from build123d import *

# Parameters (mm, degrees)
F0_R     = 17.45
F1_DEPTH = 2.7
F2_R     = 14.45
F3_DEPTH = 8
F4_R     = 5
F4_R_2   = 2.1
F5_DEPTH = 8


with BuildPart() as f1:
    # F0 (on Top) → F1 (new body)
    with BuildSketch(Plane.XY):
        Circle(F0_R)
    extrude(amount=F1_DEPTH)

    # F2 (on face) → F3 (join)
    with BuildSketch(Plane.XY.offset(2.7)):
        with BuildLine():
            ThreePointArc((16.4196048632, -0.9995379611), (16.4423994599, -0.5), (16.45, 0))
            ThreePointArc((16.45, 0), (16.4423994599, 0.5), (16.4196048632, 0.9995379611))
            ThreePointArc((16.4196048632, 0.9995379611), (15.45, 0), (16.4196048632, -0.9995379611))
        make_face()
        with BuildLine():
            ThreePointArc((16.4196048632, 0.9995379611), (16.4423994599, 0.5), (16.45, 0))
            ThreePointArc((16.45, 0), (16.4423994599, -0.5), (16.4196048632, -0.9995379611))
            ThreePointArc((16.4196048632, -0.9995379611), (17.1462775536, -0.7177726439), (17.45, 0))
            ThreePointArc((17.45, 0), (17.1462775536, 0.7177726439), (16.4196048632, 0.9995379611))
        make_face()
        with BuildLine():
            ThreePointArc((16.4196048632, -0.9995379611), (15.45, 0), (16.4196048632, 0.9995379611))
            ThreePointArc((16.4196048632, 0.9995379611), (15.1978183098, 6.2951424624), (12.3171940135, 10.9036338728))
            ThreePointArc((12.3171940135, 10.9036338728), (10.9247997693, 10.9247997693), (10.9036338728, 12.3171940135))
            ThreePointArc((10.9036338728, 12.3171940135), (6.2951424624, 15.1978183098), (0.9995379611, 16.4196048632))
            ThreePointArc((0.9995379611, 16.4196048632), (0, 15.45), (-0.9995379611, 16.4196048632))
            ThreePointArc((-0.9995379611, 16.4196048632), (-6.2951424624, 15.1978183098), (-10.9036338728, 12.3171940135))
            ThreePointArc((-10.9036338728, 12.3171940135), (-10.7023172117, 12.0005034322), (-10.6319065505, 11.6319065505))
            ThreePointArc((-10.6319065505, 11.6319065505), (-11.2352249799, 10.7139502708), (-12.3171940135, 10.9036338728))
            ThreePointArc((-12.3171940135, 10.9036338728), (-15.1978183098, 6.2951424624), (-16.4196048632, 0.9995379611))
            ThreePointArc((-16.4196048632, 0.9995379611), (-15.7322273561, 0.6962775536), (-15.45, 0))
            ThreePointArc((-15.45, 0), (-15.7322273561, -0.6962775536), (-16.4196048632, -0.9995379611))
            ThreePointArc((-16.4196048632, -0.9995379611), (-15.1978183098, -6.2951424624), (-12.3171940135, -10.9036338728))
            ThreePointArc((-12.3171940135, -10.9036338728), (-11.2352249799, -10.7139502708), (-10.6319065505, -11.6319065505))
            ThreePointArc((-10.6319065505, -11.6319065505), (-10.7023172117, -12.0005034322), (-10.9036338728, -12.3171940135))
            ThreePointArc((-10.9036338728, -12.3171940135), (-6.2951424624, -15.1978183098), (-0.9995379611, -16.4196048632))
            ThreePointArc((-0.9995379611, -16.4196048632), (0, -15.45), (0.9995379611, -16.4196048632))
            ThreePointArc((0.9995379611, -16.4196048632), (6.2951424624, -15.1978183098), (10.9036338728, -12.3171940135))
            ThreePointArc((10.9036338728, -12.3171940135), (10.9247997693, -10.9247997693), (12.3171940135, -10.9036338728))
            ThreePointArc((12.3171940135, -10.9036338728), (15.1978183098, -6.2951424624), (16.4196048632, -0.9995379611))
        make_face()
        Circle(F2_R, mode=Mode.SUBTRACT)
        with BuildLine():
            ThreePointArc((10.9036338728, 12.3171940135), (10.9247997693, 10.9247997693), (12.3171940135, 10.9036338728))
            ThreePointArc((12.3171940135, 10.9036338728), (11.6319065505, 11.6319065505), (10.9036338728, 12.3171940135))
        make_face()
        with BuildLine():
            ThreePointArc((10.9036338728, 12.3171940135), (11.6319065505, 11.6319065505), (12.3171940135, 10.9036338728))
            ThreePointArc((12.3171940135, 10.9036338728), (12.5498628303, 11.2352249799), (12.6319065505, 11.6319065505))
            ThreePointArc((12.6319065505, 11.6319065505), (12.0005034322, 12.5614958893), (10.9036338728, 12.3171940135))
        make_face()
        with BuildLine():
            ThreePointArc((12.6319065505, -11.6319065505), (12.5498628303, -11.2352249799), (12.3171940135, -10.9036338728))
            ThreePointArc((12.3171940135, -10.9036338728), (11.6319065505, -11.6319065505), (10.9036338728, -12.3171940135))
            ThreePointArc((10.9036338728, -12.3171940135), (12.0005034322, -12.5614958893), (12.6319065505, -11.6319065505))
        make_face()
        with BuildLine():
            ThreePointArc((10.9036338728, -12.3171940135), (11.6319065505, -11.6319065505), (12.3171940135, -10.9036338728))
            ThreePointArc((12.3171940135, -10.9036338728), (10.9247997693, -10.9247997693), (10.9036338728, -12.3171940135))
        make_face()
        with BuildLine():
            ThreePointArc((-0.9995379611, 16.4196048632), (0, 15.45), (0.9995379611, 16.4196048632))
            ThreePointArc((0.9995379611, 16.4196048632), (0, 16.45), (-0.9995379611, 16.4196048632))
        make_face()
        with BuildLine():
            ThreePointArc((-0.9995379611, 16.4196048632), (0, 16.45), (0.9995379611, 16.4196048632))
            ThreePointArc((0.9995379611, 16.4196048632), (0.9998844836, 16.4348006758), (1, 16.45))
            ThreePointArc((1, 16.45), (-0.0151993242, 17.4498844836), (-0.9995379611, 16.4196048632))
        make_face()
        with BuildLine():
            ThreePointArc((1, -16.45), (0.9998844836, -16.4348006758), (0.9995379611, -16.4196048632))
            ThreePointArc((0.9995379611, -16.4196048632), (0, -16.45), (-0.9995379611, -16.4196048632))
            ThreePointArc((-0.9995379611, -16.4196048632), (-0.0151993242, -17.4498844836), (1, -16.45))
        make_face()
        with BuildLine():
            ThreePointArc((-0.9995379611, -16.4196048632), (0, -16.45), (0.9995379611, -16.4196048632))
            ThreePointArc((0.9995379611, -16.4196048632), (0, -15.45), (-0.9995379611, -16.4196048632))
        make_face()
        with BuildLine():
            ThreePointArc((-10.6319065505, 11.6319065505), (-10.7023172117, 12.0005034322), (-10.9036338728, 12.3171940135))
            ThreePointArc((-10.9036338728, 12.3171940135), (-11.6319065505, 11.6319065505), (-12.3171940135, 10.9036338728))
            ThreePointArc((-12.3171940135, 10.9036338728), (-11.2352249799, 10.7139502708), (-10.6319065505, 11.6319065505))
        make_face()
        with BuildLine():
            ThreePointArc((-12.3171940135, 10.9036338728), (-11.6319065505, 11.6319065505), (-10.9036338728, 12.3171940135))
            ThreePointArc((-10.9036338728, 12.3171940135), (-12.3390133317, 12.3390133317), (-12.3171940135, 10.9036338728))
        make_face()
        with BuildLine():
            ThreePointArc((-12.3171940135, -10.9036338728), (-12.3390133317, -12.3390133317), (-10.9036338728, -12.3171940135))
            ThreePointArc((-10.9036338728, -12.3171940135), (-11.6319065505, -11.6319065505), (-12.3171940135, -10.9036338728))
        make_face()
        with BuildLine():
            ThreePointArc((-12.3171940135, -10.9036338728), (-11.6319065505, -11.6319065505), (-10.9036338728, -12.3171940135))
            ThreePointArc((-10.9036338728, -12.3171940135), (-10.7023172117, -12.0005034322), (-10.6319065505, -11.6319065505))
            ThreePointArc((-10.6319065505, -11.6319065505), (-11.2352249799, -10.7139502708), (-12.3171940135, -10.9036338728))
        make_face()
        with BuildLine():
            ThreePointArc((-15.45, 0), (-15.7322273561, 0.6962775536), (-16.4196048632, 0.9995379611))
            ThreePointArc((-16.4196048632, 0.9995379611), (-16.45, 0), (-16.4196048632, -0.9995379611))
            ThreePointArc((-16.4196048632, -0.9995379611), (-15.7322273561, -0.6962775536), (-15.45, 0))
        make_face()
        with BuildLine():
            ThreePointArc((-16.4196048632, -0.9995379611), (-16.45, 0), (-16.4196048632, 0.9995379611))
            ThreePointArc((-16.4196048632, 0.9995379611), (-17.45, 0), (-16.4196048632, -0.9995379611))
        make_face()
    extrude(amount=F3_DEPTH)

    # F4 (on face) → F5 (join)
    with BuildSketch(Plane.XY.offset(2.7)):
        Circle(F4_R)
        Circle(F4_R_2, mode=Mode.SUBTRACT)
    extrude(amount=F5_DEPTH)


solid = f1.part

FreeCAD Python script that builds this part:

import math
import FreeCAD as App
import Part
import Sketcher

doc = App.newDocument("Part")
body = doc.addObject("PartDesign::Body", "Body")

sketch1 = body.newObject("Sketcher::SketchObject", "Sketch")
sketch1.AttachmentSupport = (doc.getObject("XY_Plane"), [""])
sketch1.MapMode = "FlatFace"
sketch1.addGeometry(Part.Circle(App.Vector(0, 0, 0), App.Vector(0, 0, 1), 17), False)
sketch1.addConstraint([
    Sketcher.Constraint("Coincident", 0, 3, -1, 1),
    Sketcher.Constraint("Diameter", 0, 34.9),
])
pad1 = body.newObject("PartDesign::Pad", "Pad")
pad1.Profile = sketch1
pad1.Length = 2.7

sketch2 = body.newObject("Sketcher::SketchObject", "Sketch001")
sketch2.AttachmentSupport = (doc.getObject("XY_Plane"), [""])
sketch2.MapMode = "FlatFace"
sketch2.AttachmentOffset = App.Placement(App.Vector(0, 0, 2.7), App.Rotation())
sketch2.addGeometry([
    Part.ArcOfCircle(Part.Circle(App.Vector(16.45, 0, 0), App.Vector(0, 0, 1), 1), math.radians(-92), math.radians(0)),
    Part.ArcOfCircle(Part.Circle(App.Vector(16.45, 0, 0), App.Vector(0, 0, 1), 1), math.radians(0), math.radians(92)),
    Part.ArcOfCircle(Part.Circle(App.Vector(0, 0, 0), App.Vector(0, 0, 1), 16.45), math.radians(3), math.radians(42)),
    Part.ArcOfCircle(Part.Circle(App.Vector(11.632, 11.632, 0), App.Vector(0, 0, 1), 1), math.radians(-47), math.radians(0)),
    Part.ArcOfCircle(Part.Circle(App.Vector(11.632, 11.632, 0), App.Vector(0, 0, 1), 1), math.radians(0), math.radians(137)),
    Part.ArcOfCircle(Part.Circle(App.Vector(0, 0, 0), App.Vector(0, 0, 1), 16.45), math.radians(48), math.radians(87)),
    Part.ArcOfCircle(Part.Circle(App.Vector(0, 16.45, 0), App.Vector(0, 0, 1), 1), math.radians(-1.74), math.radians(0)),
    Part.ArcOfCircle(Part.Circle(App.Vector(0, 16.45, 0), App.Vector(0, 0, 1), 1), math.radians(0), math.radians(182)),
    Part.ArcOfCircle(Part.Circle(App.Vector(0, 0, 0), App.Vector(0, 0, 1), 16.45), math.radians(93), math.radians(132)),
    Part.ArcOfCircle(Part.Circle(App.Vector(-11.632, 11.632, 0), App.Vector(0, 0, 1), 1), math.radians(43), math.radians(227)),
    Part.ArcOfCircle(Part.Circle(App.Vector(0, 0, 0), App.Vector(0, 0, 1), 16.45), math.radians(138), math.radians(177)),
    Part.ArcOfCircle(Part.Circle(App.Vector(-16.45, 0, 0), App.Vector(0, 0, 1), 1), math.radians(88), math.radians(272)),
    Part.ArcOfCircle(Part.Circle(App.Vector(0, 0, 0), App.Vector(0, 0, 1), 16.45), math.radians(-177), math.radians(-138)),
    Part.ArcOfCircle(Part.Circle(App.Vector(-11.632, -11.632, 0), App.Vector(0, 0, 1), 1), math.radians(133), math.radians(317)),
    Part.ArcOfCircle(Part.Circle(App.Vector(0, 0, 0), App.Vector(0, 0, 1), 16.45), math.radians(-132), math.radians(-93)),
    Part.ArcOfCircle(Part.Circle(App.Vector(0, -16.45, 0), App.Vector(0, 0, 1), 1), math.radians(178), math.radians(360)),
    Part.ArcOfCircle(Part.Circle(App.Vector(0, -16.45, 0), App.Vector(0, 0, 1), 1), math.radians(0), math.radians(1.74)),
    Part.ArcOfCircle(Part.Circle(App.Vector(0, 0, 0), App.Vector(0, 0, 1), 16.45), math.radians(-87), math.radians(-48)),
    Part.ArcOfCircle(Part.Circle(App.Vector(11.632, -11.632, 0), App.Vector(0, 0, 1), 1), math.radians(-137), math.radians(0)),
    Part.ArcOfCircle(Part.Circle(App.Vector(11.632, -11.632, 0), App.Vector(0, 0, 1), 1), math.radians(0), math.radians(47)),
    Part.ArcOfCircle(Part.Circle(App.Vector(0, 0, 0), App.Vector(0, 0, 1), 16.45), math.radians(-42), math.radians(-3)),
    Part.Circle(App.Vector(0, 0, 0), App.Vector(0, 0, 1), 14.45),
], False)
sketch2.addConstraint([
    Sketcher.Constraint("Tangent", 0, 2, 1, 1),
    Sketcher.Constraint("Coincident", 1, 2, 2, 1),
    Sketcher.Constraint("Coincident", 2, 2, 3, 1),
    Sketcher.Constraint("Tangent", 3, 2, 4, 1),
    Sketcher.Constraint("Coincident", 4, 2, 5, 1),
    Sketcher.Constraint("Coincident", 5, 2, 6, 1),
    Sketcher.Constraint("Tangent", 6, 2, 7, 1),
    Sketcher.Constraint("Coincident", 7, 2, 8, 1),
    Sketcher.Constraint("Coincident", 8, 2, 9, 1),
    Sketcher.Constraint("Coincident", 9, 2, 10, 1),
    Sketcher.Constraint("Coincident", 10, 2, 11, 1),
    Sketcher.Constraint("Coincident", 11, 2, 12, 1),
    Sketcher.Constraint("Coincident", 12, 2, 13, 1),
    Sketcher.Constraint("Coincident", 13, 2, 14, 1),
    Sketcher.Constraint("Coincident", 14, 2, 15, 1),
    Sketcher.Constraint("Tangent", 15, 2, 16, 1),
    Sketcher.Constraint("Coincident", 16, 2, 17, 1),
    Sketcher.Constraint("Coincident", 17, 2, 18, 1),
    Sketcher.Constraint("Tangent", 18, 2, 19, 1),
    Sketcher.Constraint("Coincident", 19, 2, 20, 1),
    Sketcher.Constraint("Coincident", 20, 2, 0, 1),
    Sketcher.Constraint("Coincident", 2, 3, -1, 1),
    Sketcher.Constraint("Coincident", 5, 3, -1, 1),
    Sketcher.Constraint("Coincident", 8, 3, -1, 1),
    Sketcher.Constraint("Coincident", 10, 3, -1, 1),
    Sketcher.Constraint("Coincident", 12, 3, -1, 1),
    Sketcher.Constraint("Coincident", 14, 3, -1, 1),
    Sketcher.Constraint("Coincident", 17, 3, -1, 1),
    Sketcher.Constraint("Coincident", 20, 3, -1, 1),
    Sketcher.Constraint("Coincident", 21, 3, -1, 1),
    Sketcher.Constraint("Equal", 0, 1),
    Sketcher.Constraint("Equal", 1, 3),
    Sketcher.Constraint("Equal", 3, 4),
    Sketcher.Constraint("Equal", 2, 5),
    Sketcher.Constraint("Equal", 4, 6),
    Sketcher.Constraint("Equal", 6, 7),
    Sketcher.Constraint("Equal", 5, 8),
    Sketcher.Constraint("Equal", 7, 9),
    Sketcher.Constraint("Equal", 8, 10),
    Sketcher.Constraint("Equal", 9, 11),
    Sketcher.Constraint("Equal", 10, 12),
    Sketcher.Constraint("Equal", 11, 13),
    Sketcher.Constraint("Equal", 12, 14),
    Sketcher.Constraint("Equal", 13, 15),
    Sketcher.Constraint("Equal", 15, 16),
    Sketcher.Constraint("Equal", 14, 17),
    Sketcher.Constraint("Equal", 16, 18),
    Sketcher.Constraint("Equal", 18, 19),
    Sketcher.Constraint("Equal", 17, 20),
    Sketcher.Constraint("Symmetric", 0, 3, 11, 3, -1, 1),
    Sketcher.Constraint("Symmetric", 3, 3, 13, 3, -1, 1),
    Sketcher.Constraint("Symmetric", 6, 3, 15, 3, -1, 1),
    Sketcher.Constraint("Symmetric", 9, 3, 18, 3, -1, 1),
    Sketcher.Constraint("Symmetric", 3, 3, 9, 3, -2),
    Sketcher.Constraint("Symmetric", 6, 2, 15, 2, -1),
    Sketcher.Constraint("PointOnObject", 0, 3, -1),
    Sketcher.Constraint("PointOnObject", 0, 2, -1),
    Sketcher.Constraint("Horizontal", 9, 3, 3, 2),
    Sketcher.Constraint("Horizontal", 7, 3, 6, 2),
    Sketcher.Constraint("Horizontal", 19, 3, 18, 2),
    Sketcher.Constraint("Radius", 0, 1.0),
    Sketcher.Constraint("Diameter", 21, 28.9),
    Sketcher.Constraint("Radius", 2, 16.45),
    Sketcher.Constraint("DistanceX", -1, 1, 0, 3, 16.45),
    Sketcher.Constraint("DistanceY", -1, 1, 6, 3, 16.45),
    Sketcher.Constraint("DistanceX", 3, 3, 1, 2, 4.787698),
    Sketcher.Constraint("DistanceY", 4, 3, 5, 2, 4.787698),
])
pad2 = body.newObject("PartDesign::Pad", "Pad001")
pad2.Profile = sketch2
pad2.Length = 8

sketch3 = body.newObject("Sketcher::SketchObject", "Sketch002")
sketch3.AttachmentSupport = (doc.getObject("XY_Plane"), [""])
sketch3.MapMode = "FlatFace"
sketch3.AttachmentOffset = App.Placement(App.Vector(0, 0, 2.7), App.Rotation())
sketch3.addGeometry([
    Part.Circle(App.Vector(0, 0, 0), App.Vector(0, 0, 1), 5),
    Part.Circle(App.Vector(0, 0, 0), App.Vector(0, 0, 1), 2.1),
], False)
sketch3.addConstraint([
    Sketcher.Constraint("Coincident", 0, 3, -1, 1),
    Sketcher.Constraint("Coincident", 1, 3, -1, 1),
    Sketcher.Constraint("Diameter", 0, 10.0),
    Sketcher.Constraint("Diameter", 1, 4.2),
])
pad3 = body.newObject("PartDesign::Pad", "Pad002")
pad3.Profile = sketch3
pad3.Length = 8

doc.recompute()
